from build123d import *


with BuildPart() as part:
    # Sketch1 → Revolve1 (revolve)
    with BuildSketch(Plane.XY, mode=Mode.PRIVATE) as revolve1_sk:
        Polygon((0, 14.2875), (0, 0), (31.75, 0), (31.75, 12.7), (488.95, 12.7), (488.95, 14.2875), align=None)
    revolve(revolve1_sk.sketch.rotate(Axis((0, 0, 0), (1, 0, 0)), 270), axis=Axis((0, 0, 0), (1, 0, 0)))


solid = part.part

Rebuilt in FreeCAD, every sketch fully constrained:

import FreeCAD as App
import Part
import Sketcher
Q = App.Units.Quantity

doc = App.newDocument("Part")
body = doc.addObject("PartDesign::Body", "Body")

# Sketch on XY plane
sketch1 = body.newObject("Sketcher::SketchObject", "Sketch")
sketch1.AttachmentSupport = (doc.getObject("XY_Plane"), [""])
sketch1.MapMode = "FlatFace"
sketch1.addGeometry(Part.LineSegment(App.Vector(0, 14.3, 0), App.Vector(0, 0, 0)), False)
sketch1.addGeometry(Part.LineSegment(App.Vector(0, 0, 0), App.Vector(31.8, 0, 0)), False)
sketch1.addGeometry(Part.LineSegment(App.Vector(31.8, 0, 0), App.Vector(31.8, 12.7, 0)), False)
sketch1.addGeometry(Part.LineSegment(App.Vector(31.8, 12.7, 0), App.Vector(488.9, 12.7, 0)), False)
sketch1.addGeometry(Part.LineSegment(App.Vector(488.9, 12.7, 0), App.Vector(488.9, 14.3, 0)), False)
sketch1.addGeometry(Part.LineSegment(App.Vector(488.9, 14.3, 0), App.Vector(0, 14.3, 0)), False)
sketch1.addConstraint(Sketcher.Constraint("Coincident", 0, 2, 1, 1))
sketch1.addConstraint(Sketcher.Constraint("Coincident", 1, 2, 2, 1))
sketch1.addConstraint(Sketcher.Constraint("Coincident", 2, 2, 3, 1))
sketch1.addConstraint(Sketcher.Constraint("Coincident", 3, 2, 4, 1))
sketch1.addConstraint(Sketcher.Constraint("Coincident", 4, 2, 5, 1))
sketch1.addConstraint(Sketcher.Constraint("Coincident", 5, 2, 0, 1))
sketch1.addConstraint(Sketcher.Constraint("Vertical", 0))
sketch1.addConstraint(Sketcher.Constraint("Horizontal", 1))
sketch1.addConstraint(Sketcher.Constraint("Vertical", 2))
sketch1.addConstraint(Sketcher.Constraint("Horizontal", 3))
sketch1.addConstraint(Sketcher.Constraint("Vertical", 4))
sketch1.addConstraint(Sketcher.Constraint("Horizontal", 5))
sketch1.addConstraint(Sketcher.Constraint("Coincident", 0, 2, -1, 1))
sketch1.addConstraint(Sketcher.Constraint("DistanceX", 3, 1, 3, 2, Q("18 in")))
sketch1.addConstraint(Sketcher.Constraint("DistanceY", 2, 1, 2, 2, Q("0.5 in")))
sketch1.addConstraint(Sketcher.Constraint("DistanceX", 1, 1, 1, 2, Q("1.25 in")))
sketch1.addConstraint(Sketcher.Constraint("DistanceY", 0, 2, 0, 1, Q("0.5625 in")))
revolution = body.newObject("PartDesign::Revolution", "Revolution")
revolution.Profile = sketch1
revolution.ReferenceAxis = (sketch1, ["H_Axis"])
revolution.Angle = 360

doc.recompute()
